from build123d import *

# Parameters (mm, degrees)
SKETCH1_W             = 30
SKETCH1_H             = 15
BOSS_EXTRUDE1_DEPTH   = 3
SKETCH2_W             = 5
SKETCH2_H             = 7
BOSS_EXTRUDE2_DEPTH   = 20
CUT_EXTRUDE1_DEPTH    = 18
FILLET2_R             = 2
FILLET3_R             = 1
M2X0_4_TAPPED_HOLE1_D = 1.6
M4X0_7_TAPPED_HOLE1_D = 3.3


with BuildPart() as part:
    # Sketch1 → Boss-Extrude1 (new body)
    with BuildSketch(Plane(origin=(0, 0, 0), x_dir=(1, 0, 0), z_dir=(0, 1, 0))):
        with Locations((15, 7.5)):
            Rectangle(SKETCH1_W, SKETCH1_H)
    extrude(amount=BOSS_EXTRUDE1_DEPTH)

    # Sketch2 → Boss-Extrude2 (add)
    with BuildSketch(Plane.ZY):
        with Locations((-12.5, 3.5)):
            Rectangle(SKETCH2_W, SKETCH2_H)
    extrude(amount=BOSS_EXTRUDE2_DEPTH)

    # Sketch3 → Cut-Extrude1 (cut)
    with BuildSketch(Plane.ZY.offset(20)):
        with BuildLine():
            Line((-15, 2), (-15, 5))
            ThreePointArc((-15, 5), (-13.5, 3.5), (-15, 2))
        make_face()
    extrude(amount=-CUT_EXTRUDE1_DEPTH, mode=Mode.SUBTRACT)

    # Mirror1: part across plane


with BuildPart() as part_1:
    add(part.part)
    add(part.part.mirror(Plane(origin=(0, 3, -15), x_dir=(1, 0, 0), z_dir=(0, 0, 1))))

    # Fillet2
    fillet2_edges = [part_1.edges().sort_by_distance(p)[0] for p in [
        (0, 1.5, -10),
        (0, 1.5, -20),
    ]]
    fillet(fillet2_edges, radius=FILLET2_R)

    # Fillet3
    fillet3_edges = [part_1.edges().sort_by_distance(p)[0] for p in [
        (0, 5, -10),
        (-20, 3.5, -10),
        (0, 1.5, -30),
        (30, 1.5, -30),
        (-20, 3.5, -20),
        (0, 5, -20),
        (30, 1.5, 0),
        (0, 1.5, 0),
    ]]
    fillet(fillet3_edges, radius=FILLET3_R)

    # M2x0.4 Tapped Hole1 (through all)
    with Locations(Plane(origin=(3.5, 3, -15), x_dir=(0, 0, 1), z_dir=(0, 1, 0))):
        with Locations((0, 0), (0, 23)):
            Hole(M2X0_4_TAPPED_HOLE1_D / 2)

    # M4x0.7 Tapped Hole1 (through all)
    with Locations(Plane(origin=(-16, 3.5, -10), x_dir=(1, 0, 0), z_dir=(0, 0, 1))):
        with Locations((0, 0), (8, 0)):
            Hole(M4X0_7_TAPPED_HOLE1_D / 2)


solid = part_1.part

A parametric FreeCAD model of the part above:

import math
import FreeCAD as App
import Part
import Sketcher

V = App.Vector


def edges_at(feature, points):
    """Names of the edges that pass closest to the given points."""
    edges = feature.Shape.Edges
    near = lambda p: min(range(len(edges)), key=lambda i: edges[i].distToShape(Part.Vertex(*p))[0])
    return sorted({f"Edge{near(p) + 1}" for p in points})


def add_polygon(sketch, points):
    """Adds a closed chain of lines whose ends are joined by coincident constraints."""
    first, n = sketch.GeometryCount, len(points)
    for a, b in zip(points, points[1:] + points[:1]):
        sketch.addGeometry(Part.LineSegment(App.Vector(*a, 0), App.Vector(*b, 0)), False)
    for i in range(n):
        sketch.addConstraint(Sketcher.Constraint("Coincident", first + i, 2, first + (i + 1) % n, 1))

doc = App.newDocument("Part")
params = doc.addObject("Spreadsheet::Sheet", "Params")
for row, (alias, value) in enumerate([
    ("sketch1_width", "30 mm"),
    ("sketch1_height", "15 mm"),
    ("pad1_length", "3 mm"),
    ("sketch2_width", "7 mm"),
    ("sketch2_height", "5 mm"),
    ("pad2_length", "20 mm"),
    ("sketch3_radius", "1.5 mm"),
    ("pocket1_length", "18 mm"),
    ("fillet_radius", "2 mm"),
    ("fillet2_radius", "1 mm"),
    ("sketch4_diameter", "1.6 mm"),
    ("hole_diameter", "1.6 mm"),
    ("sketch5_diameter", "3.3 mm"),
    ("hole2_diameter", "3.3 mm"),
], start=1):
    params.set(f"A{row}", alias)
    params.set(f"B{row}", "=" + value)
    params.setAlias(f"B{row}", alias)

body = doc.addObject("PartDesign::Body", "Body")

# Sketch on XZ plane
sketch1 = body.newObject("Sketcher::SketchObject", "Sketch")
sketch1.AttachmentSupport = (doc.getObject("XZ_Plane"), [""])
sketch1.MapMode = "FlatFace"
add_polygon(sketch1, [(0, -15), (0, 0), (30, 0), (30, -15)])  # lines 0-3
sketch1.addConstraint([
    Sketcher.Constraint("Vertical", 0),
    Sketcher.Constraint("Horizontal", 1),
    Sketcher.Constraint("Vertical", 2),
    Sketcher.Constraint("Horizontal", 3),
    Sketcher.Constraint("Coincident", 0, 2, -1, 1),
    Sketcher.Constraint("DistanceX", 1, 1, 1, 2, 30.0),
    Sketcher.Constraint("DistanceY", 0, 1, 0, 2, 15.0),
])
sketch1.setExpression("Constraints[9]", "Params.sketch1_width")
sketch1.setExpression("Constraints[10]", "Params.sketch1_height")
pad1 = body.newObject("PartDesign::Pad", "Pad")
pad1.Profile = sketch1
pad1.setExpression("Length", "Params.pad1_length")
pad1.Reversed = True

# Sketch on YZ plane
sketch2 = body.newObject("Sketcher::SketchObject", "Sketch001")
sketch2.AttachmentSupport = (doc.getObject("YZ_Plane"), [""])
sketch2.MapMode = "FlatFace"
add_polygon(sketch2, [(7, -15), (0, -15), (0, -10), (7, -10)])  # lines 0-3
sketch2.addConstraint([
    Sketcher.Constraint("Horizontal", 0),
    Sketcher.Constraint("Vertical", 1),
    Sketcher.Constraint("Horizontal", 2),
    Sketcher.Constraint("Vertical", 3),
    Sketcher.Constraint("PointOnObject", 0, 2, -2),
    Sketcher.Constraint("DistanceX", 0, 2, 0, 1, 7.0),
    Sketcher.Constraint("DistanceY", 1, 1, 1, 2, 5.0),
    Sketcher.Constraint("DistanceY", 0, 2, -1, 1, 15.0),
])
sketch2.setExpression("Constraints[9]", "Params.sketch2_width")
sketch2.setExpression("Constraints[10]", "Params.sketch2_height")
pad2 = body.newObject("PartDesign::Pad", "Pad001")
pad2.Profile = sketch2
pad2.setExpression("Length", "Params.pad2_length")
pad2.Reversed = True

# Sketch on YZ plane
sketch3 = body.newObject("Sketcher::SketchObject", "Sketch002")
sketch3.AttachmentSupport = (doc.getObject("YZ_Plane"), [""])
sketch3.MapMode = "FlatFace"
sketch3.AttachmentOffset = App.Placement(V(0, 0, -20), App.Rotation())
sketch3.addGeometry([
    Part.LineSegment(V(5, -15, 0), V(2, -15, 0)),
    Part.ArcOfCircle(Part.Circle(V(3.5, -15, 0), V(0, 0, 1), 1.5), math.radians(0), math.radians(180)),
], False)
sketch3.addConstraint([
    Sketcher.Constraint("Coincident", 0, 1, 1, 1),
    Sketcher.Constraint("Coincident", 1, 2, 0, 2),
    Sketcher.Constraint("Horizontal", 0),
    Sketcher.Constraint("Horizontal", 1, 3, 0, 1),
    Sketcher.Constraint("Radius", 1, 1.5),
    Sketcher.Constraint("DistanceY", 1, 3, -1, 1, 15.0),
    Sketcher.Constraint("DistanceX", -1, 1, 0, 1, 5.0),
])
sketch3.setExpression("Constraints[4]", "Params.sketch3_radius")
pocket1 = body.newObject("PartDesign::Pocket", "Pocket")
pocket1.Profile = sketch3
pocket1.setExpression("Length", "Params.pocket1_length")
pocket1.Reversed = True
body2 = doc.addObject("PartDesign::Body", "Body001")
doc.recompute()

body2.BaseFeature = body
doc.recompute()

mirroring = doc.addObject("Part::Mirroring", "Mirroring")
mirroring.Source = body
mirroring.Base = V(0, 3, -15)
mirroring.Normal = V(0, 0, 1)
body3 = doc.addObject("PartDesign::Body", "Body002")
body3.BaseFeature = mirroring
boolean = body2.newObject("PartDesign::Boolean", "Boolean")
boolean.Type = "Fuse"
boolean.addObjects([body3])
doc.recompute()

fillet = body2.newObject("PartDesign::Fillet", "Fillet")
fillet.Base = (boolean, edges_at(boolean, [(0, 1.5, -10), (0, 1.5, -20)]))
fillet.setExpression("Radius", "Params.fillet_radius")
doc.recompute()

fillet2 = body2.newObject("PartDesign::Fillet", "Fillet001")
fillet2.Base = (fillet, edges_at(fillet, [
    (0, 5, -10),
    (-20, 3.5, -10),
    (0, 1.5, -30),
    (30, 1.5, -30),
    (-20, 3.5, -20),
    (0, 5, -20),
    (30, 1.5, 0),
    (0, 1.5, 0),
]))
fillet2.setExpression("Radius", "Params.fillet2_radius")

# Sketch on XZ plane
sketch4 = body2.newObject("Sketcher::SketchObject", "Sketch003")
sketch4.AttachmentSupport = (doc.getObject("XZ_Plane001"), [""])
sketch4.MapMode = "FlatFace"
sketch4.AttachmentOffset = App.Placement(V(0, 0, -3), App.Rotation())
sketch4.addGeometry([
    Part.Circle(V(3.5, -15, 0), V(0, 0, 1), 0.8),
    Part.Circle(V(26.5, -15, 0), V(0, 0, 1), 0.8),
], False)
sketch4.addConstraint([
    Sketcher.Constraint("Equal", 0, 1),
    Sketcher.Constraint("Horizontal", 0, 3, 1, 3),
    Sketcher.Constraint("Diameter", 0, 1.6),
    Sketcher.Constraint("DistanceY", 0, 3, -1, 1, 15.0),
    Sketcher.Constraint("DistanceX", 0, 3, 1, 3, 23.0),
    Sketcher.Constraint("DistanceX", -1, 1, 0, 3, 3.5),
])
sketch4.setExpression("Constraints[2]", "Params.sketch4_diameter")
doc.recompute()
hole = body2.newObject("PartDesign::Hole", "Hole")
hole.Profile = sketch4
hole.ThreadType = "None"
hole.setExpression("Diameter", "Params.hole_diameter")
hole.DepthType = "ThroughAll"
hole.Reversed = True

# Sketch on XY plane
sketch5 = body2.newObject("Sketcher::SketchObject", "Sketch004")
sketch5.AttachmentSupport = (doc.getObject("XY_Plane001"), [""])
sketch5.MapMode = "FlatFace"
sketch5.AttachmentOffset = App.Placement(V(0, 0, -10), App.Rotation())
sketch5.addGeometry([
    Part.Circle(V(-16, 3.5, 0), V(0, 0, 1), 1.6),
    Part.Circle(V(-8, 3.5, 0), V(0, 0, 1), 1.6),
], False)
sketch5.addConstraint([
    Sketcher.Constraint("Equal", 0, 1),
    Sketcher.Constraint("Horizontal", 0, 3, 1, 3),
    Sketcher.Constraint("Diameter", 0, 3.3),
    Sketcher.Constraint("DistanceX", 0, 3, -1, 1, 16.0),
    Sketcher.Constraint("DistanceX", 1, 3, -1, 1, 8.0),
    Sketcher.Constraint("DistanceY", -1, 1, 0, 3, 3.5),
])
sketch5.setExpression("Constraints[2]", "Params.sketch5_diameter")
doc.recompute()
hole2 = body2.newObject("PartDesign::Hole", "Hole001")
hole2.Profile = sketch5
hole2.ThreadType = "None"
hole2.setExpression("Diameter", "Params.hole2_diameter")
hole2.DepthType = "ThroughAll"
mirroring.Visibility = False

doc.recompute()
